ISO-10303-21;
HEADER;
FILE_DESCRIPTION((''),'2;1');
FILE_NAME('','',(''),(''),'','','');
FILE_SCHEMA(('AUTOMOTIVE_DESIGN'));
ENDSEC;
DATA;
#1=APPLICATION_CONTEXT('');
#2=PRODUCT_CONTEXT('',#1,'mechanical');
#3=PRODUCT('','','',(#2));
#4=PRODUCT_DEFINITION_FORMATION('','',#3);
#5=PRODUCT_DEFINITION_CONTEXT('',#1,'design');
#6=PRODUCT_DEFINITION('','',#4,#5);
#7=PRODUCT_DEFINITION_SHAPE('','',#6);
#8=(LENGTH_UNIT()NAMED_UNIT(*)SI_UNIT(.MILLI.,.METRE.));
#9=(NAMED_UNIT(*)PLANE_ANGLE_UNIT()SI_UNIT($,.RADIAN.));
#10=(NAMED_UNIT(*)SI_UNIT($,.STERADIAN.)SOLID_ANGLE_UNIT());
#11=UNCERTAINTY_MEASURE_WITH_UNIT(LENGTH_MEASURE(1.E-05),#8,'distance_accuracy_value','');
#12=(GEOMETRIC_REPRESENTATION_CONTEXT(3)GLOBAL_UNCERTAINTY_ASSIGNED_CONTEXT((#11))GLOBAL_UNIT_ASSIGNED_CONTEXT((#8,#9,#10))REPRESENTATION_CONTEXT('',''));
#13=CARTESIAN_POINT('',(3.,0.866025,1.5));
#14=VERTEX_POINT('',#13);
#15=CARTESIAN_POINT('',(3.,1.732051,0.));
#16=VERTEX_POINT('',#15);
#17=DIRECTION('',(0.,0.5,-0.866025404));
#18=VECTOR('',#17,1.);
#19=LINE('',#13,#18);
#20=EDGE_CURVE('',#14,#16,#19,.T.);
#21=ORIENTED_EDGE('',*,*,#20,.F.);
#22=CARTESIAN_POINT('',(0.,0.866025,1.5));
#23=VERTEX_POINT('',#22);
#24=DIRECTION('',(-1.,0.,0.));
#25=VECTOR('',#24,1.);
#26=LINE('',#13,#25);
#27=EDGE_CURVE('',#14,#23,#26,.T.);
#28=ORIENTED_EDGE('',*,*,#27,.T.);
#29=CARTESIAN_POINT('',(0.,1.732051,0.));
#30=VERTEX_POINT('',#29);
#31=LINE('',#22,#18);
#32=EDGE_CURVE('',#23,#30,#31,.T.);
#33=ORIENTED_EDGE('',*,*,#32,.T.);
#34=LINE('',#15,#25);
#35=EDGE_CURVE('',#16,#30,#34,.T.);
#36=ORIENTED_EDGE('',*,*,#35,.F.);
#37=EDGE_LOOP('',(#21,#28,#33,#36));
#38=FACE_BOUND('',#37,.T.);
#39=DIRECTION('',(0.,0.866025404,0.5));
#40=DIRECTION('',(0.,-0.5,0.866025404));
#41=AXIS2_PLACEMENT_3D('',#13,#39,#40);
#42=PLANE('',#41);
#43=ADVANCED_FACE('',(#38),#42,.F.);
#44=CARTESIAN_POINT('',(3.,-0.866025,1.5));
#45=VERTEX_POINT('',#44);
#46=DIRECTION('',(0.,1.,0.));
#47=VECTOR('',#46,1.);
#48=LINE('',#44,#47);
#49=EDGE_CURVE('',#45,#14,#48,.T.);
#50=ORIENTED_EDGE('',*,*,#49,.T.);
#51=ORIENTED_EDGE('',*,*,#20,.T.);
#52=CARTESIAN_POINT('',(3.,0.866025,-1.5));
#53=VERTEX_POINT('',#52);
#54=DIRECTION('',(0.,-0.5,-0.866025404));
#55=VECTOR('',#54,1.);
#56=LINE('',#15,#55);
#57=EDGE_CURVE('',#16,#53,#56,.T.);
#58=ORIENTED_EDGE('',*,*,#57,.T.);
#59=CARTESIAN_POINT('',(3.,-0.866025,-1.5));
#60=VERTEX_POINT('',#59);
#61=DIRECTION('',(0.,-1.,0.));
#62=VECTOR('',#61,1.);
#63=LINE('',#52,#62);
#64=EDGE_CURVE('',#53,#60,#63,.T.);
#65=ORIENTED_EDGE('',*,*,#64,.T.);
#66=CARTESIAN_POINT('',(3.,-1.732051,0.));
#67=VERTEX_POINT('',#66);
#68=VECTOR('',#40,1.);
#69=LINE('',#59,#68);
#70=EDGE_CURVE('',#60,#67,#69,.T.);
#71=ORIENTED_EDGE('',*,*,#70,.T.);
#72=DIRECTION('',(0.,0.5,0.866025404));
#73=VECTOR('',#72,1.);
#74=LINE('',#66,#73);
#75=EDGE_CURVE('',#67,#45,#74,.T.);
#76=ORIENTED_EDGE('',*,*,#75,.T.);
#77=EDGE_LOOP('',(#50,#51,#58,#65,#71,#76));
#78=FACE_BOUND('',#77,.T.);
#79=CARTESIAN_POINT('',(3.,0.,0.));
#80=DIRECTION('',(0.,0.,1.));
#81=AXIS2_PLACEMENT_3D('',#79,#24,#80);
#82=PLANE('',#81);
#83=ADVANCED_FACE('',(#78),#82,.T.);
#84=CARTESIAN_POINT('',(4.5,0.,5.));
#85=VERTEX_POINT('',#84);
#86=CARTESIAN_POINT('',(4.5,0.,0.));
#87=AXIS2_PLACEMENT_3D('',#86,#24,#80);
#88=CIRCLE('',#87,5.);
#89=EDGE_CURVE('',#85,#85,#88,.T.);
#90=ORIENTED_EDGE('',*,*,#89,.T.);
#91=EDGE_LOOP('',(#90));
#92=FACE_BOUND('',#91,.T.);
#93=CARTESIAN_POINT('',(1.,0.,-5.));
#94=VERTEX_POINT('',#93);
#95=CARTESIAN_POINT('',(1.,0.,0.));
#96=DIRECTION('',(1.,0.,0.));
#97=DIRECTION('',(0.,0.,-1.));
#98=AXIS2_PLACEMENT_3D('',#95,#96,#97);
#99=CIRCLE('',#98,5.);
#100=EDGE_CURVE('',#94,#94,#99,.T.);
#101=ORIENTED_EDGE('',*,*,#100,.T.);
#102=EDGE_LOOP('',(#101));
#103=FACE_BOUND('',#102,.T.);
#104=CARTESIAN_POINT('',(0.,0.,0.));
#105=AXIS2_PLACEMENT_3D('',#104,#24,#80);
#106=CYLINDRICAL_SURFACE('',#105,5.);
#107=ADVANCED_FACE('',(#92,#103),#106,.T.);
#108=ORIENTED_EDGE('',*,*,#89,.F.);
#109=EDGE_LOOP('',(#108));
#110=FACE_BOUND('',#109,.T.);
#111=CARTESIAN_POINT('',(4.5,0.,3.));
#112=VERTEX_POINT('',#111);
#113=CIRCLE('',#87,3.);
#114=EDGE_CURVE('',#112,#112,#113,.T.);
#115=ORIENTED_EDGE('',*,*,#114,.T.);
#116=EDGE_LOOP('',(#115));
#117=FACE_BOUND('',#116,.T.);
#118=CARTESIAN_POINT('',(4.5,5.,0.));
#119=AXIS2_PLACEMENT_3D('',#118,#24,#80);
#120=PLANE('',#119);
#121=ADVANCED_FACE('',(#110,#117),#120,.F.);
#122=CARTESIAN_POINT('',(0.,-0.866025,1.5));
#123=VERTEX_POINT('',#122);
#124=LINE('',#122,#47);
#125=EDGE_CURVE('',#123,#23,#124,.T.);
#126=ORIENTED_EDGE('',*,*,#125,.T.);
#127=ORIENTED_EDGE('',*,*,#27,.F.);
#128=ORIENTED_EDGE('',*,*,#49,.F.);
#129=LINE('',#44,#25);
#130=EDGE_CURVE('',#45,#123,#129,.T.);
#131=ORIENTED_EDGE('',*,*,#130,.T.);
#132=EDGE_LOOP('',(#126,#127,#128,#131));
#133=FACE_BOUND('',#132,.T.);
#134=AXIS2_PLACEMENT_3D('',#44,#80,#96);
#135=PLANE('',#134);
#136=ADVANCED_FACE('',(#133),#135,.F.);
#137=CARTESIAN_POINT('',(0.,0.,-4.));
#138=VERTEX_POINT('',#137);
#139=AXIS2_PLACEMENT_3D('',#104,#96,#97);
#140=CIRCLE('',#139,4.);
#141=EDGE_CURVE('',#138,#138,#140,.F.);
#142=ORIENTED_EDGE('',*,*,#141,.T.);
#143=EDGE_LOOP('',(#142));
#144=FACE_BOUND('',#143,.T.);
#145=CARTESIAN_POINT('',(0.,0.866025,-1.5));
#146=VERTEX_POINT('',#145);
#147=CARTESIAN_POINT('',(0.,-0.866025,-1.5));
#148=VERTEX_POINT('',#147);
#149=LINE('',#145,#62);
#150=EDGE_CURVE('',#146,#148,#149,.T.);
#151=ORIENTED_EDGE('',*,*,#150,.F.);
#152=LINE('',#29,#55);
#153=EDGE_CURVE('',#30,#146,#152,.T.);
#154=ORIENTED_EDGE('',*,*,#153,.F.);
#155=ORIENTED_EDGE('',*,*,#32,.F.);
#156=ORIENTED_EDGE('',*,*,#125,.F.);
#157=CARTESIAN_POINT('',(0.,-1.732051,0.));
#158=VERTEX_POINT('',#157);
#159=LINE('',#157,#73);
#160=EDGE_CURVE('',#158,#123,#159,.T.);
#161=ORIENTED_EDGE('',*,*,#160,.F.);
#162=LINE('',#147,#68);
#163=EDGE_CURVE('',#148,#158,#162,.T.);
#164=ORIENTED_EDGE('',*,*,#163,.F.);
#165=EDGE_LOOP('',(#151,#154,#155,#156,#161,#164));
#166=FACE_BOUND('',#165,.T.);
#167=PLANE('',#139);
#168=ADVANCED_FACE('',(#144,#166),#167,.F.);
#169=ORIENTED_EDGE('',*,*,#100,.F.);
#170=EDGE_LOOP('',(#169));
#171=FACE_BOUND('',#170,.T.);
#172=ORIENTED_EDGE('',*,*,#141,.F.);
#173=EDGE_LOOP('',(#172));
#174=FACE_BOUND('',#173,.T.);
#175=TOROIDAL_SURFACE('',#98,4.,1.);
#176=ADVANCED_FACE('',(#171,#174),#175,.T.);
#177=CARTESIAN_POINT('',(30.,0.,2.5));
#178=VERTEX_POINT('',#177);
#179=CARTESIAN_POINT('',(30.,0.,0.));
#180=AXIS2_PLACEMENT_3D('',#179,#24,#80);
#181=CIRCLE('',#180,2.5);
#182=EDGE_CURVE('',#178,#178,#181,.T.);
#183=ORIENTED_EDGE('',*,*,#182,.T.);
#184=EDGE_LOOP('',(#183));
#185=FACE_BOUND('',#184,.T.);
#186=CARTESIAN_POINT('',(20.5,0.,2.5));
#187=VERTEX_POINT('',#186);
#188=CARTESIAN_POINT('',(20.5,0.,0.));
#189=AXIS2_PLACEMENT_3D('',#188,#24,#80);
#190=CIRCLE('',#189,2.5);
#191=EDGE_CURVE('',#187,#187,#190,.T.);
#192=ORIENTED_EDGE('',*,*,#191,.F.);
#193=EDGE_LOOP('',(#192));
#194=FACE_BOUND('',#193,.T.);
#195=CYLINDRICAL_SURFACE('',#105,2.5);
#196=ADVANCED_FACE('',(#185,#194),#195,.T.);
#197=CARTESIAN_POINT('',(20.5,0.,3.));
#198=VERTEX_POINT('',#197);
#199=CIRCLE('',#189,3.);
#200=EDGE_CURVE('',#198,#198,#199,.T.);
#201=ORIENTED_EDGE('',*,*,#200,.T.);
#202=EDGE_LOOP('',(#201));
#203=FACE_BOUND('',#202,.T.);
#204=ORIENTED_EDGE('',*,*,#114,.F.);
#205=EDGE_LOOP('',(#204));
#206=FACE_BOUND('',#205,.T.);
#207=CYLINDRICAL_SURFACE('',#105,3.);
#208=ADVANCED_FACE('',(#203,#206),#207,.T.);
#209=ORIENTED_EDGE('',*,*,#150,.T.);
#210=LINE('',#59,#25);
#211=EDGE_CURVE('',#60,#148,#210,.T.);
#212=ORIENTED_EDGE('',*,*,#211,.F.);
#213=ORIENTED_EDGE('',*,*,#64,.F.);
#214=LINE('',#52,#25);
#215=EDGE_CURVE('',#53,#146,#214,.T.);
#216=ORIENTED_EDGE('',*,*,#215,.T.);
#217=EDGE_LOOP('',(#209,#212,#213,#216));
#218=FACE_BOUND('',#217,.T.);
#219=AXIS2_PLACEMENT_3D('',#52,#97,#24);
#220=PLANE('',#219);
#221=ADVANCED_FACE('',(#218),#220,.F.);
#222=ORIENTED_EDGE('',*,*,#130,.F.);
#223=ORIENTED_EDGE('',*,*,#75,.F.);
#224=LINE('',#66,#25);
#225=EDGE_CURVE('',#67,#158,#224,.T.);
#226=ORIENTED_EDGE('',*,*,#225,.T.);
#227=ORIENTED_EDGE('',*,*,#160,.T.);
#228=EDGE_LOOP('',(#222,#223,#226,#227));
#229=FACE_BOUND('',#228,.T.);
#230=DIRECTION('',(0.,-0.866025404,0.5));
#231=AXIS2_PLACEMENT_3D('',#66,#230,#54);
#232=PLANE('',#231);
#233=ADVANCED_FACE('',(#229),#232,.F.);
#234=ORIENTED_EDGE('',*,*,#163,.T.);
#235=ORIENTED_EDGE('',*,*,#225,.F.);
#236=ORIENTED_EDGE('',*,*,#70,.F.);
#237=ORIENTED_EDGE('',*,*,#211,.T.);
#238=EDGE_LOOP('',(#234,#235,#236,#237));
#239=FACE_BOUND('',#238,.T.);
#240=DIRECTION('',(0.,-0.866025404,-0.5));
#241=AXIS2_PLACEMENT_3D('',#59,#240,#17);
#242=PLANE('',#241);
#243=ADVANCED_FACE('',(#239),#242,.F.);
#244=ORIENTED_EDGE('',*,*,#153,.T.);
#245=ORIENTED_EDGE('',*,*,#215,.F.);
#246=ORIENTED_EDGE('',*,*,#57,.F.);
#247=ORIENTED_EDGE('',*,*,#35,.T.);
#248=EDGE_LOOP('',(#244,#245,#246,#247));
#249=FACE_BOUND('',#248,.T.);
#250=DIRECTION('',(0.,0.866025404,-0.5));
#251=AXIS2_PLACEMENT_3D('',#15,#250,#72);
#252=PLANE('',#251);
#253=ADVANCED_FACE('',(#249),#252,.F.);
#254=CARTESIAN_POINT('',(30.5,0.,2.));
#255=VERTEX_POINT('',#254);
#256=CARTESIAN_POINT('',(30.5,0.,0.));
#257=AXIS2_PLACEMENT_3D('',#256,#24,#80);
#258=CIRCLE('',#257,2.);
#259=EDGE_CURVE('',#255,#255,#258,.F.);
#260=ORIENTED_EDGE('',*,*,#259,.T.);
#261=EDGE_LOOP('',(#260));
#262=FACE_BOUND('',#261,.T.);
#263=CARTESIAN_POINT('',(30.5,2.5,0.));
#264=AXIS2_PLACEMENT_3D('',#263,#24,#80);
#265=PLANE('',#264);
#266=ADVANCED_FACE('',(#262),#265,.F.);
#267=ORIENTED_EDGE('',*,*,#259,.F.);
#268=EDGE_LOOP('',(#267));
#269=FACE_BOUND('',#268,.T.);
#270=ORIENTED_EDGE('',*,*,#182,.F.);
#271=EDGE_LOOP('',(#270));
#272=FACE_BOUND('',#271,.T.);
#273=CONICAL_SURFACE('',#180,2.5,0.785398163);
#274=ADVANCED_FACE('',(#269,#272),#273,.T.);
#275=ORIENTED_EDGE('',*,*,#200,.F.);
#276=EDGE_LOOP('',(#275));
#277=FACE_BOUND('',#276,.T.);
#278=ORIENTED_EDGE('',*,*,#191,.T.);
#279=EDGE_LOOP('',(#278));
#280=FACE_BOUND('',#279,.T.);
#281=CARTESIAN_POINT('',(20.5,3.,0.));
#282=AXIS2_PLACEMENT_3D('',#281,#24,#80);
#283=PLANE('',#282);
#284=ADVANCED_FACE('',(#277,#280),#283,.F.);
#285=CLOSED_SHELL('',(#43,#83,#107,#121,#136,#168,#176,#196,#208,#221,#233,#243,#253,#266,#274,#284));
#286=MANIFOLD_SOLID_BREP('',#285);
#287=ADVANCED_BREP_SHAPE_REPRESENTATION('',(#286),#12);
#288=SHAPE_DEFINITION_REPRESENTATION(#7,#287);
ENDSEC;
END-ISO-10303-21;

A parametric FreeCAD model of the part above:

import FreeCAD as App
import Part
import Sketcher

V = App.Vector
Q = App.Units.Quantity


def edges_at(feature, points):
    """Names of the edges that pass closest to the given points."""
    edges = feature.Shape.Edges
    near = lambda p: min(range(len(edges)), key=lambda i: edges[i].distToShape(Part.Vertex(*p))[0])
    return sorted({f"Edge{near(p) + 1}" for p in points})

doc = App.newDocument("Part")
params = doc.addObject("Spreadsheet::Sheet", "Params")
for row, (alias, value) in enumerate([
    ("sketch1_width", "10 mm"),
    ("sketch1_width2", "16 mm"),
    ("sketch1_height", "5 mm"),
    ("sketch1_height2", "2 mm"),
    ("sketch1_width3", "30.5 mm"),
    ("revolution_angle", "360 deg"),
    ("pocket1_length", "3 mm"),
    ("fillet_radius", "1 mm"),
    ("chamfer_size", "0.5 mm"),
], start=1):
    params.set(f"A{row}", alias)
    params.set(f"B{row}", "=" + value)
    params.setAlias(f"B{row}", alias)

body = doc.addObject("PartDesign::Body", "Body")

# Sketch on XY plane
sketch1 = body.newObject("Sketcher::SketchObject", "Sketch")
sketch1.AttachmentSupport = (doc.getObject("XY_Plane"), [""])
sketch1.MapMode = "FlatFace"
sketch1.addGeometry([
    Part.LineSegment(V(0, 5, 0), V(0, 0, 0)),  # 0
    Part.LineSegment(V(0, 0, 0), V(30.5, 0, 0)),  # 1
    Part.LineSegment(V(30.5, 0, 0), V(30.5, 2.5, 0)),  # 2
    Part.LineSegment(V(30.5, 2.5, 0), V(20.5, 2.5, 0)),  # 3
    Part.LineSegment(V(20.5, 2.5, 0), V(20.5, 3, 0)),  # 4
    Part.LineSegment(V(20.5, 3, 0), V(4.5, 3, 0)),  # 5
    Part.LineSegment(V(4.5, 3, 0), V(4.5, 5, 0)),  # 6
    Part.LineSegment(V(4.5, 5, 0), V(0, 5, 0)),  # 7
], False)
sketch1.addConstraint([
    Sketcher.Constraint("Coincident", 0, 2, 1, 1),
    Sketcher.Constraint("Coincident", 1, 2, 2, 1),
    Sketcher.Constraint("Coincident", 2, 2, 3, 1),
    Sketcher.Constraint("Coincident", 3, 2, 4, 1),
    Sketcher.Constraint("Coincident", 4, 2, 5, 1),
    Sketcher.Constraint("Coincident", 5, 2, 6, 1),
    Sketcher.Constraint("Coincident", 6, 2, 7, 1),
    Sketcher.Constraint("Coincident", 7, 2, 0, 1),
    Sketcher.Constraint("Vertical", 0),
    Sketcher.Constraint("Horizontal", 1),
    Sketcher.Constraint("Vertical", 2),
    Sketcher.Constraint("Horizontal", 3),
    Sketcher.Constraint("Vertical", 4),
    Sketcher.Constraint("Horizontal", 5),
    Sketcher.Constraint("Vertical", 6),
    Sketcher.Constraint("Horizontal", 7),
    Sketcher.Constraint("Coincident", 0, 2, -1, 1),
    Sketcher.Constraint("DistanceX", 3, 2, 3, 1, 10.0),
    Sketcher.Constraint("DistanceX", 5, 2, 5, 1, 16.0),
    Sketcher.Constraint("DistanceY", 0, 2, 0, 1, 5.0),
    Sketcher.Constraint("DistanceY", 6, 1, 6, 2, 2.0),
    Sketcher.Constraint("DistanceX", 1, 1, 1, 2, 30.5),
    Sketcher.Constraint("DistanceY", 2, 1, 2, 2, 2.5),
])
sketch1.setExpression("Constraints[17]", "Params.sketch1_width")
sketch1.setExpression("Constraints[18]", "Params.sketch1_width2")
sketch1.setExpression("Constraints[19]", "Params.sketch1_height")
sketch1.setExpression("Constraints[20]", "Params.sketch1_height2")
sketch1.setExpression("Constraints[21]", "Params.sketch1_width3")
revolution = body.newObject("PartDesign::Revolution", "Revolution")
revolution.Profile = sketch1
revolution.ReferenceAxis = (sketch1, ["H_Axis"])
revolution.setExpression("Angle", "Params.revolution_angle")

# Sketch on YZ plane
sketch2 = body.newObject("Sketcher::SketchObject", "Sketch001")
sketch2.AttachmentSupport = (doc.getObject("YZ_Plane"), [""])
sketch2.MapMode = "FlatFace"
sketch2.addGeometry([
    Part.LineSegment(V(1.7, 0, 0), V(0.9, -1.5, 0)),  # 0
    Part.LineSegment(V(0.9, -1.5, 0), V(-0.9, -1.5, 0)),  # 1
    Part.LineSegment(V(-0.9, -1.5, 0), V(-1.7, 0, 0)),  # 2
    Part.LineSegment(V(-1.7, 0, 0), V(-0.9, 1.5, 0)),  # 3
    Part.LineSegment(V(-0.9, 1.5, 0), V(0.9, 1.5, 0)),  # 4
    Part.LineSegment(V(0.9, 1.5, 0), V(1.7, 0, 0)),  # 5
], False)
sketch2.addConstraint([
    Sketcher.Constraint("Coincident", 0, 2, 1, 1),
    Sketcher.Constraint("Coincident", 1, 2, 2, 1),
    Sketcher.Constraint("Coincident", 2, 2, 3, 1),
    Sketcher.Constraint("Coincident", 3, 2, 4, 1),
    Sketcher.Constraint("Coincident", 4, 2, 5, 1),
    Sketcher.Constraint("Coincident", 5, 2, 0, 1),
    Sketcher.Constraint("Horizontal", 1),
    Sketcher.Constraint("Horizontal", 4),
    Sketcher.Constraint("Symmetric", 0, 2, 3, 2, -1, 1),
    Sketcher.Constraint("Symmetric", 2, 2, 5, 2, -1, 1),
    Sketcher.Constraint("PointOnObject", 2, 2, -1),
    Sketcher.Constraint("Parallel", 2, 5),
    Sketcher.Constraint("Vertical", 1, 2, 3, 2),
    Sketcher.Constraint("Angle", 0, Q("-120 deg")),
    Sketcher.Constraint("DistanceY", 1, 2, 3, 2, 3.0),
    Sketcher.Constraint("DistanceX", 1, 2, 1, 1, 1.732051),
])
pocket1 = body.newObject("PartDesign::Pocket", "Pocket")
pocket1.Profile = sketch2
pocket1.setExpression("Length", "Params.pocket1_length")
pocket1.Reversed = True
doc.recompute()

fillet = body.newObject("PartDesign::Fillet", "Fillet")
fillet.Base = (pocket1, edges_at(pocket1, [(0, -5, 0)]))
fillet.setExpression("Radius", "Params.fillet_radius")
doc.recompute()

chamfer = body.newObject("PartDesign::Chamfer", "Chamfer")
chamfer.Base = (fillet, edges_at(fillet, [(30.5, -2.5, 0)]))
chamfer.setExpression("Size", "Params.chamfer_size")

doc.recompute()
